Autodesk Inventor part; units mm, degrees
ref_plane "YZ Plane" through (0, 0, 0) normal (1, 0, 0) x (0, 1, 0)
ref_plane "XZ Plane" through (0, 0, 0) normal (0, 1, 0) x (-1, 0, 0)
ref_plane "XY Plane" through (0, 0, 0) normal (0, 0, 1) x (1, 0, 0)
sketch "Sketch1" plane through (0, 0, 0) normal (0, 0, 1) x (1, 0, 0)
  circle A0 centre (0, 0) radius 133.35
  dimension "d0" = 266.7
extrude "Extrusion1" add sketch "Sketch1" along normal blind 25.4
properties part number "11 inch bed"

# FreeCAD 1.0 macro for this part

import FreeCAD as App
import Part
import Sketcher
from FreeCAD import Vector
Q = App.Units.Quantity

doc = App.newDocument("Part")
body = doc.addObject("PartDesign::Body", "Body")

# Sketch on XY plane
sketch1 = doc.addObject("Sketcher::SketchObject", "Sketch")
body.addObject(sketch1)
sketch1.AttachmentSupport = (doc.XY_Plane, [""])
sketch1.MapMode = "FlatFace"
sketch1.addGeometry(Part.Circle(Vector(0, 0, 0), Vector(0, 0, 1), 133), False)
sketch1.addConstraint(Sketcher.Constraint("Coincident", 0, 3, -1, 1))
sketch1.addConstraint(Sketcher.Constraint("Diameter", 0, Q("10.5 in")))
pad1 = doc.addObject("PartDesign::Pad", "Pad")
body.addObject(pad1)
pad1.Profile = sketch1
pad1.Length = Q("1 in")

doc.recompute()
